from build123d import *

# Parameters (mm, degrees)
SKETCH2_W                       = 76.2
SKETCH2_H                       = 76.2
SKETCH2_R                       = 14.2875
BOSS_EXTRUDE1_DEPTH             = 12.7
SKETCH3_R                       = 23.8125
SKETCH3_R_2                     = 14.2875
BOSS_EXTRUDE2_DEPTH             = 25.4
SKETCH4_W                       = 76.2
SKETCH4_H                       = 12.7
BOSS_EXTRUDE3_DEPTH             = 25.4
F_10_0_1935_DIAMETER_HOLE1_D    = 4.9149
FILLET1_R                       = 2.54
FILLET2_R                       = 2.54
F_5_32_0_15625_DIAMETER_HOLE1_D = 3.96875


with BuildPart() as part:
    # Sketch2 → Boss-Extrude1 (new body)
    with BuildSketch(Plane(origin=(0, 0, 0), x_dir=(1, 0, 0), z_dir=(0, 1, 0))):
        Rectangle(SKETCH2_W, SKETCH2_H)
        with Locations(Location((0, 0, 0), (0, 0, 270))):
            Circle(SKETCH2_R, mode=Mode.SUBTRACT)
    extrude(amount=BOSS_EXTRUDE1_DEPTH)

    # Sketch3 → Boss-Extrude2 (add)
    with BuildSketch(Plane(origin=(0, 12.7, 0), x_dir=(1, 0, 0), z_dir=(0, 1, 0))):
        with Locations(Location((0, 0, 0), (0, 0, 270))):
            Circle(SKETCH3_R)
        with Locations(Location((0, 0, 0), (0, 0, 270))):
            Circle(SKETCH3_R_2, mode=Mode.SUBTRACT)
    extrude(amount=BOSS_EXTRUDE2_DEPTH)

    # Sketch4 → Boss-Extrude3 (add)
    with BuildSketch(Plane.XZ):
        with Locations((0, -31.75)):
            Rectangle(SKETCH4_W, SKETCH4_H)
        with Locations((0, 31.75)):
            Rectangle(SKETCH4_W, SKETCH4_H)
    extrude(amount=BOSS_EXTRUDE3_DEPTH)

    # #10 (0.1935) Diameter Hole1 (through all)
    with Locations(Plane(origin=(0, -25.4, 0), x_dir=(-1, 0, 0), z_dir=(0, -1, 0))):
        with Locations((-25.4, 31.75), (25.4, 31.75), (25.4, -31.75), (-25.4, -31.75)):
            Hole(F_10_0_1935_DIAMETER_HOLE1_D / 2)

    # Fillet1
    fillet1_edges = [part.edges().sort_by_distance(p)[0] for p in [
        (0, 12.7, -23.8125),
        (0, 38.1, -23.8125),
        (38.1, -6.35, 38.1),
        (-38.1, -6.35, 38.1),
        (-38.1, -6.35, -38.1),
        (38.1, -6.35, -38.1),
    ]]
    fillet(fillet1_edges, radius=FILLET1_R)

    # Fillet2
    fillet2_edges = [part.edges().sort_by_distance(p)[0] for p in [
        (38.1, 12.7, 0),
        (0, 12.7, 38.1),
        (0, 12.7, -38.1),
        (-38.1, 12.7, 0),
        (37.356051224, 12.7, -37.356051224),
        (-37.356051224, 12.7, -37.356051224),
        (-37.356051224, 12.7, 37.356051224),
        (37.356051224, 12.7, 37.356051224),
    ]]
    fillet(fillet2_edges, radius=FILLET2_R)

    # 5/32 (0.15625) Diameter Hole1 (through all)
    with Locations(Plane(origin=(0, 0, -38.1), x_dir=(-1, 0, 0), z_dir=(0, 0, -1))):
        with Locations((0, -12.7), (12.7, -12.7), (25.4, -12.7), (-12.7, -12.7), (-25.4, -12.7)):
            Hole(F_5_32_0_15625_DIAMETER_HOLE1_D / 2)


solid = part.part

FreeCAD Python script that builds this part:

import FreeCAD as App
import Part
import Sketcher
Q = App.Units.Quantity


def edges_at(feature, points):
    """Names of the edges that pass closest to the given points."""
    edges = feature.Shape.Edges
    near = lambda p: min(range(len(edges)), key=lambda i: edges[i].distToShape(Part.Vertex(*p))[0])
    return sorted({f"Edge{near(p) + 1}" for p in points})


def add_polygon(sketch, points):
    """Adds a closed chain of lines whose ends are joined by coincident constraints."""
    first, n = sketch.GeometryCount, len(points)
    for a, b in zip(points, points[1:] + points[:1]):
        sketch.addGeometry(Part.LineSegment(App.Vector(*a, 0), App.Vector(*b, 0)), False)
    for i in range(n):
        sketch.addConstraint(Sketcher.Constraint("Coincident", first + i, 2, first + (i + 1) % n, 1))

doc = App.newDocument("Part")
body = doc.addObject("PartDesign::Body", "Body")

# Sketch on XZ plane
sketch1 = doc.addObject("Sketcher::SketchObject", "Sketch")
body.addObject(sketch1)
sketch1.AttachmentSupport = (doc.XZ_Plane, [""])
sketch1.MapMode = "FlatFace"
add_polygon(sketch1, [(-38.1, -38.1), (-38.1, 38.1), (38.1, 38.1), (38.1, -38.1)])  # lines 0-3
sketch1.addGeometry(Part.Circle(App.Vector(0, 0, 0), App.Vector(0, 0, 1), 14.2875), False)  # 4
sketch1.addConstraint(Sketcher.Constraint("Vertical", 0))
sketch1.addConstraint(Sketcher.Constraint("Horizontal", 1))
sketch1.addConstraint(Sketcher.Constraint("Vertical", 2))
sketch1.addConstraint(Sketcher.Constraint("Horizontal", 3))
sketch1.addConstraint(Sketcher.Constraint("Coincident", 4, 3, -1, 1))
sketch1.addConstraint(Sketcher.Constraint("Symmetric", 0, 2, 2, 2, -1, 1))
sketch1.addConstraint(Sketcher.Constraint("Equal", 3, 0))
sketch1.addConstraint(Sketcher.Constraint("DistanceX", 1, 1, 1, 2, Q("3 in")))
sketch1.addConstraint(Sketcher.Constraint("Diameter", 4, Q("1.125 in")))
pad1 = doc.addObject("PartDesign::Pad", "Pad")
body.addObject(pad1)
pad1.Profile = sketch1
pad1.Length = Q("0.5 in")
pad1.Reversed = True

# Sketch on XZ plane
sketch2 = doc.addObject("Sketcher::SketchObject", "Sketch001")
body.addObject(sketch2)
sketch2.AttachmentSupport = (doc.XZ_Plane, [""])
sketch2.MapMode = "FlatFace"
sketch2.AttachmentOffset = App.Placement(App.Vector(0, 0, -0.5 * 25.4), App.Rotation())
sketch2.addGeometry(Part.Circle(App.Vector(0, 0, 0), App.Vector(0, 0, 1), 23.8125), False)
sketch2.addGeometry(Part.Circle(App.Vector(0, 0, 0), App.Vector(0, 0, 1), 14.2875), False)
sketch2.addConstraint(Sketcher.Constraint("Coincident", 0, 3, -1, 1))
sketch2.addConstraint(Sketcher.Constraint("Coincident", 1, 3, -1, 1))
sketch2.addConstraint(Sketcher.Constraint("Diameter", 0, Q("1.875 in")))
sketch2.addConstraint(Sketcher.Constraint("Diameter", 1, Q("1.125 in")))
pad2 = doc.addObject("PartDesign::Pad", "Pad001")
body.addObject(pad2)
pad2.Profile = sketch2
pad2.Length = Q("1 in")
pad2.Reversed = True

# Sketch on XZ plane
sketch3 = doc.addObject("Sketcher::SketchObject", "Sketch002")
body.addObject(sketch3)
sketch3.AttachmentSupport = (doc.XZ_Plane, [""])
sketch3.MapMode = "FlatFace"
add_polygon(sketch3, [(-38.1, -25.4), (-38.1, -38.1), (38.1, -38.1), (38.1, -25.4)])  # lines 0-3
add_polygon(sketch3, [(-38.1, 38.1), (-38.1, 25.4), (38.1, 25.4), (38.1, 38.1)])  # lines 4-7
sketch3.addConstraint(Sketcher.Constraint("Vertical", 0))
sketch3.addConstraint(Sketcher.Constraint("Horizontal", 1))
sketch3.addConstraint(Sketcher.Constraint("Vertical", 2))
sketch3.addConstraint(Sketcher.Constraint("Horizontal", 3))
sketch3.addConstraint(Sketcher.Constraint("Vertical", 4))
sketch3.addConstraint(Sketcher.Constraint("Horizontal", 5))
sketch3.addConstraint(Sketcher.Constraint("Vertical", 6))
sketch3.addConstraint(Sketcher.Constraint("Horizontal", 7))
sketch3.addConstraint(Sketcher.Constraint("Symmetric", 2, 2, 4, 2, -1, 1))
sketch3.addConstraint(Sketcher.Constraint("Symmetric", 0, 2, 6, 2, -1, 1))
sketch3.addConstraint(Sketcher.Constraint("Vertical", 3, 2, 4, 2))
sketch3.addConstraint(Sketcher.Constraint("DistanceX", 1, 1, 1, 2, Q("3 in")))
sketch3.addConstraint(Sketcher.Constraint("DistanceY", 0, 2, 0, 1, Q("0.5 in")))
sketch3.addConstraint(Sketcher.Constraint("DistanceY", 2, 2, -1, 1, Q("1 in")))
pad3 = doc.addObject("PartDesign::Pad", "Pad002")
body.addObject(pad3)
pad3.Profile = sketch3
pad3.Length = Q("1 in")

# Sketch on XZ plane
sketch4 = doc.addObject("Sketcher::SketchObject", "Sketch003")
body.addObject(sketch4)
sketch4.AttachmentSupport = (doc.XZ_Plane, [""])
sketch4.MapMode = "FlatFace"
sketch4.AttachmentOffset = App.Placement(App.Vector(0, 0, 1 * 25.4), App.Rotation())
sketch4.addGeometry(Part.Circle(App.Vector(25.4, -31.75, 0), App.Vector(0, 0, 1), 2.45745), False)
sketch4.addGeometry(Part.Circle(App.Vector(-25.4, -31.75, 0), App.Vector(0, 0, 1), 2.45745), False)
sketch4.addGeometry(Part.Circle(App.Vector(-25.4, 31.75, 0), App.Vector(0, 0, 1), 2.45745), False)
sketch4.addGeometry(Part.Circle(App.Vector(25.4, 31.75, 0), App.Vector(0, 0, 1), 2.45745), False)
sketch4.addConstraint(Sketcher.Constraint("Equal", 0, 1))
sketch4.addConstraint(Sketcher.Constraint("Equal", 1, 2))
sketch4.addConstraint(Sketcher.Constraint("Equal", 2, 3))
sketch4.addConstraint(Sketcher.Constraint("Symmetric", 0, 3, 2, 3, -1, 1))
sketch4.addConstraint(Sketcher.Constraint("Symmetric", 1, 3, 3, 3, -1, 1))
sketch4.addConstraint(Sketcher.Constraint("Symmetric", 0, 3, 1, 3, -2))
sketch4.addConstraint(Sketcher.Constraint("DistanceX", -1, 1, 0, 3, Q("1 in")))
sketch4.addConstraint(Sketcher.Constraint("Diameter", 0, Q("0.1935 in")))
sketch4.addConstraint(Sketcher.Constraint("DistanceY", 1, 3, 2, 3, Q("2.5 in")))
doc.recompute()
hole = doc.addObject("PartDesign::Hole", "Hole")
body.addObject(hole)
hole.Profile = sketch4
hole.ThreadType = "None"
hole.Diameter = Q("0.1935 in")
hole.DepthType = "ThroughAll"
doc.recompute()

fillet = doc.addObject("PartDesign::Fillet", "Fillet")
body.addObject(fillet)
fillet.Base = (hole, edges_at(hole, [
    (0, 12.7, -23.812),
    (0, 38.1, -23.812),
    (38.1, -6.35, 38.1),
    (-38.1, -6.35, 38.1),
    (-38.1, -6.35, -38.1),
    (38.1, -6.35, -38.1),
]))
fillet.Radius = Q("0.1 in")
doc.recompute()

fillet2 = doc.addObject("PartDesign::Fillet", "Fillet001")
body.addObject(fillet2)
fillet2.Base = (fillet, edges_at(fillet, [
    (38.1, 12.7, 0),
    (0, 12.7, 38.1),
    (0, 12.7, -38.1),
    (-38.1, 12.7, 0),
    (37.356, 12.7, -37.356),
    (-37.356, 12.7, -37.356),
    (-37.356, 12.7, 37.356),
    (37.356, 12.7, 37.356),
]))
fillet2.Radius = Q("0.1 in")

# Sketch on XY plane
sketch5 = doc.addObject("Sketcher::SketchObject", "Sketch004")
body.addObject(sketch5)
sketch5.AttachmentSupport = (doc.XY_Plane, [""])
sketch5.MapMode = "FlatFace"
sketch5.AttachmentOffset = App.Placement(App.Vector(0, 0, -1.5 * 25.4), App.Rotation())
sketch5.addGeometry(Part.Circle(App.Vector(0, -12.7, 0), App.Vector(0, 0, 1), 1.984375), False)
sketch5.addGeometry(Part.Circle(App.Vector(-12.7, -12.7, 0), App.Vector(0, 0, 1), 1.984375), False)
sketch5.addGeometry(Part.Circle(App.Vector(-25.4, -12.7, 0), App.Vector(0, 0, 1), 1.984375), False)
sketch5.addGeometry(Part.Circle(App.Vector(12.7, -12.7, 0), App.Vector(0, 0, 1), 1.984375), False)
sketch5.addGeometry(Part.Circle(App.Vector(25.4, -12.7, 0), App.Vector(0, 0, 1), 1.984375), False)
sketch5.addConstraint(Sketcher.Constraint("Equal", 0, 1))
sketch5.addConstraint(Sketcher.Constraint("Equal", 1, 2))
sketch5.addConstraint(Sketcher.Constraint("Equal", 2, 3))
sketch5.addConstraint(Sketcher.Constraint("Equal", 3, 4))
sketch5.addConstraint(Sketcher.Constraint("Symmetric", 1, 3, 3, 3, -2))
sketch5.addConstraint(Sketcher.Constraint("Symmetric", 2, 3, 4, 3, -2))
sketch5.addConstraint(Sketcher.Constraint("PointOnObject", 0, 3, -2))
sketch5.addConstraint(Sketcher.Constraint("Horizontal", 0, 3, 1, 3))
sketch5.addConstraint(Sketcher.Constraint("Horizontal", 1, 3, 2, 3))
sketch5.addConstraint(Sketcher.Constraint("Diameter", 0, Q("0.15625 in")))
sketch5.addConstraint(Sketcher.Constraint("DistanceX", 2, 3, -1, 1, Q("1 in")))
sketch5.addConstraint(Sketcher.Constraint("DistanceX", 1, 3, 3, 3, Q("1 in")))
sketch5.addConstraint(Sketcher.Constraint("DistanceY", 0, 3, -1, 1, Q("0.5 in")))
doc.recompute()
hole2 = doc.addObject("PartDesign::Hole", "Hole001")
body.addObject(hole2)
hole2.Profile = sketch5
hole2.ThreadType = "None"
hole2.Diameter = Q("0.15625 in")
hole2.DepthType = "ThroughAll"
hole2.Reversed = True

doc.recompute()
